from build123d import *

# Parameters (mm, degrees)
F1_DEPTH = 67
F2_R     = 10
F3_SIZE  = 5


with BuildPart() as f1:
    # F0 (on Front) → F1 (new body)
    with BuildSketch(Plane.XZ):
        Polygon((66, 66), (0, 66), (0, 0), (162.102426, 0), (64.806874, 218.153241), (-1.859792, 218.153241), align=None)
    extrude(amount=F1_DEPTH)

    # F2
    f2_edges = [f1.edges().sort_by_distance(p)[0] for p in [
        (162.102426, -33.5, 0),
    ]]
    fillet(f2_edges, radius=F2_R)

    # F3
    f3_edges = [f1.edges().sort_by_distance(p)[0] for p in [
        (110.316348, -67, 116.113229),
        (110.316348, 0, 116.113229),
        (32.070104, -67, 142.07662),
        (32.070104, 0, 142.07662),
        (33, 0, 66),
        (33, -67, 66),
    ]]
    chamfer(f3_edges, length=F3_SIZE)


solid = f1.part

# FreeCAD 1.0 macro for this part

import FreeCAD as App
import Part
import Sketcher

V = App.Vector


def edges_at(feature, points):
    """Names of the edges that pass closest to the given points."""
    edges = feature.Shape.Edges
    near = lambda p: min(range(len(edges)), key=lambda i: edges[i].distToShape(Part.Vertex(*p))[0])
    return sorted({f"Edge{near(p) + 1}" for p in points})


def add_polygon(sketch, points):
    """Adds a closed chain of lines whose ends are joined by coincident constraints."""
    first, n = sketch.GeometryCount, len(points)
    for a, b in zip(points, points[1:] + points[:1]):
        sketch.addGeometry(Part.LineSegment(App.Vector(*a, 0), App.Vector(*b, 0)), False)
    for i in range(n):
        sketch.addConstraint(Sketcher.Constraint("Coincident", first + i, 2, first + (i + 1) % n, 1))

doc = App.newDocument("Part")
body = doc.addObject("PartDesign::Body", "Body")

sketch1 = body.newObject("Sketcher::SketchObject", "Sketch")
sketch1.AttachmentSupport = (doc.getObject("XZ_Plane"), [""])
sketch1.MapMode = "FlatFace"
add_polygon(sketch1, [(66, 66), (0, 66), (0, 0), (162, 0), (65, 218), (-2, 218)])
sketch1.addConstraint([
    Sketcher.Constraint("Horizontal", 0),
    Sketcher.Constraint("Vertical", 1),
    Sketcher.Constraint("Horizontal", 2),
    Sketcher.Constraint("Horizontal", 4),
    Sketcher.Constraint("Coincident", 1, 2, -1, 1),
    Sketcher.Constraint("Parallel", 3, 5),
    Sketcher.Constraint("Equal", 0, 1),
    Sketcher.Constraint("DistanceX", 0, 2, 0, 1, 66.0),
    Sketcher.Constraint("Distance", 5, 166.6),
    Sketcher.Constraint("DistanceX", 2, 1, 2, 2, 162.102426),
    Sketcher.Constraint("DistanceX", 4, 2, 4, 1, 66.666666),
])
pad1 = body.newObject("PartDesign::Pad", "Pad")
pad1.Profile = sketch1
pad1.Length = 67
doc.recompute()

fillet = body.newObject("PartDesign::Fillet", "Fillet")
fillet.Base = (pad1, edges_at(pad1, [(162.102, -33.5, 0)]))
fillet.Radius = 10
doc.recompute()

chamfer = body.newObject("PartDesign::Chamfer", "Chamfer")
chamfer.Base = (fillet, edges_at(fillet, [
    (110.316, -67, 116.113),
    (110.316, 0, 116.113),
    (32.07, -67, 142.077),
    (32.07, 0, 142.077),
    (33, 0, 66),
    (33, -67, 66),
]))
chamfer.Size = 5

doc.recompute()
